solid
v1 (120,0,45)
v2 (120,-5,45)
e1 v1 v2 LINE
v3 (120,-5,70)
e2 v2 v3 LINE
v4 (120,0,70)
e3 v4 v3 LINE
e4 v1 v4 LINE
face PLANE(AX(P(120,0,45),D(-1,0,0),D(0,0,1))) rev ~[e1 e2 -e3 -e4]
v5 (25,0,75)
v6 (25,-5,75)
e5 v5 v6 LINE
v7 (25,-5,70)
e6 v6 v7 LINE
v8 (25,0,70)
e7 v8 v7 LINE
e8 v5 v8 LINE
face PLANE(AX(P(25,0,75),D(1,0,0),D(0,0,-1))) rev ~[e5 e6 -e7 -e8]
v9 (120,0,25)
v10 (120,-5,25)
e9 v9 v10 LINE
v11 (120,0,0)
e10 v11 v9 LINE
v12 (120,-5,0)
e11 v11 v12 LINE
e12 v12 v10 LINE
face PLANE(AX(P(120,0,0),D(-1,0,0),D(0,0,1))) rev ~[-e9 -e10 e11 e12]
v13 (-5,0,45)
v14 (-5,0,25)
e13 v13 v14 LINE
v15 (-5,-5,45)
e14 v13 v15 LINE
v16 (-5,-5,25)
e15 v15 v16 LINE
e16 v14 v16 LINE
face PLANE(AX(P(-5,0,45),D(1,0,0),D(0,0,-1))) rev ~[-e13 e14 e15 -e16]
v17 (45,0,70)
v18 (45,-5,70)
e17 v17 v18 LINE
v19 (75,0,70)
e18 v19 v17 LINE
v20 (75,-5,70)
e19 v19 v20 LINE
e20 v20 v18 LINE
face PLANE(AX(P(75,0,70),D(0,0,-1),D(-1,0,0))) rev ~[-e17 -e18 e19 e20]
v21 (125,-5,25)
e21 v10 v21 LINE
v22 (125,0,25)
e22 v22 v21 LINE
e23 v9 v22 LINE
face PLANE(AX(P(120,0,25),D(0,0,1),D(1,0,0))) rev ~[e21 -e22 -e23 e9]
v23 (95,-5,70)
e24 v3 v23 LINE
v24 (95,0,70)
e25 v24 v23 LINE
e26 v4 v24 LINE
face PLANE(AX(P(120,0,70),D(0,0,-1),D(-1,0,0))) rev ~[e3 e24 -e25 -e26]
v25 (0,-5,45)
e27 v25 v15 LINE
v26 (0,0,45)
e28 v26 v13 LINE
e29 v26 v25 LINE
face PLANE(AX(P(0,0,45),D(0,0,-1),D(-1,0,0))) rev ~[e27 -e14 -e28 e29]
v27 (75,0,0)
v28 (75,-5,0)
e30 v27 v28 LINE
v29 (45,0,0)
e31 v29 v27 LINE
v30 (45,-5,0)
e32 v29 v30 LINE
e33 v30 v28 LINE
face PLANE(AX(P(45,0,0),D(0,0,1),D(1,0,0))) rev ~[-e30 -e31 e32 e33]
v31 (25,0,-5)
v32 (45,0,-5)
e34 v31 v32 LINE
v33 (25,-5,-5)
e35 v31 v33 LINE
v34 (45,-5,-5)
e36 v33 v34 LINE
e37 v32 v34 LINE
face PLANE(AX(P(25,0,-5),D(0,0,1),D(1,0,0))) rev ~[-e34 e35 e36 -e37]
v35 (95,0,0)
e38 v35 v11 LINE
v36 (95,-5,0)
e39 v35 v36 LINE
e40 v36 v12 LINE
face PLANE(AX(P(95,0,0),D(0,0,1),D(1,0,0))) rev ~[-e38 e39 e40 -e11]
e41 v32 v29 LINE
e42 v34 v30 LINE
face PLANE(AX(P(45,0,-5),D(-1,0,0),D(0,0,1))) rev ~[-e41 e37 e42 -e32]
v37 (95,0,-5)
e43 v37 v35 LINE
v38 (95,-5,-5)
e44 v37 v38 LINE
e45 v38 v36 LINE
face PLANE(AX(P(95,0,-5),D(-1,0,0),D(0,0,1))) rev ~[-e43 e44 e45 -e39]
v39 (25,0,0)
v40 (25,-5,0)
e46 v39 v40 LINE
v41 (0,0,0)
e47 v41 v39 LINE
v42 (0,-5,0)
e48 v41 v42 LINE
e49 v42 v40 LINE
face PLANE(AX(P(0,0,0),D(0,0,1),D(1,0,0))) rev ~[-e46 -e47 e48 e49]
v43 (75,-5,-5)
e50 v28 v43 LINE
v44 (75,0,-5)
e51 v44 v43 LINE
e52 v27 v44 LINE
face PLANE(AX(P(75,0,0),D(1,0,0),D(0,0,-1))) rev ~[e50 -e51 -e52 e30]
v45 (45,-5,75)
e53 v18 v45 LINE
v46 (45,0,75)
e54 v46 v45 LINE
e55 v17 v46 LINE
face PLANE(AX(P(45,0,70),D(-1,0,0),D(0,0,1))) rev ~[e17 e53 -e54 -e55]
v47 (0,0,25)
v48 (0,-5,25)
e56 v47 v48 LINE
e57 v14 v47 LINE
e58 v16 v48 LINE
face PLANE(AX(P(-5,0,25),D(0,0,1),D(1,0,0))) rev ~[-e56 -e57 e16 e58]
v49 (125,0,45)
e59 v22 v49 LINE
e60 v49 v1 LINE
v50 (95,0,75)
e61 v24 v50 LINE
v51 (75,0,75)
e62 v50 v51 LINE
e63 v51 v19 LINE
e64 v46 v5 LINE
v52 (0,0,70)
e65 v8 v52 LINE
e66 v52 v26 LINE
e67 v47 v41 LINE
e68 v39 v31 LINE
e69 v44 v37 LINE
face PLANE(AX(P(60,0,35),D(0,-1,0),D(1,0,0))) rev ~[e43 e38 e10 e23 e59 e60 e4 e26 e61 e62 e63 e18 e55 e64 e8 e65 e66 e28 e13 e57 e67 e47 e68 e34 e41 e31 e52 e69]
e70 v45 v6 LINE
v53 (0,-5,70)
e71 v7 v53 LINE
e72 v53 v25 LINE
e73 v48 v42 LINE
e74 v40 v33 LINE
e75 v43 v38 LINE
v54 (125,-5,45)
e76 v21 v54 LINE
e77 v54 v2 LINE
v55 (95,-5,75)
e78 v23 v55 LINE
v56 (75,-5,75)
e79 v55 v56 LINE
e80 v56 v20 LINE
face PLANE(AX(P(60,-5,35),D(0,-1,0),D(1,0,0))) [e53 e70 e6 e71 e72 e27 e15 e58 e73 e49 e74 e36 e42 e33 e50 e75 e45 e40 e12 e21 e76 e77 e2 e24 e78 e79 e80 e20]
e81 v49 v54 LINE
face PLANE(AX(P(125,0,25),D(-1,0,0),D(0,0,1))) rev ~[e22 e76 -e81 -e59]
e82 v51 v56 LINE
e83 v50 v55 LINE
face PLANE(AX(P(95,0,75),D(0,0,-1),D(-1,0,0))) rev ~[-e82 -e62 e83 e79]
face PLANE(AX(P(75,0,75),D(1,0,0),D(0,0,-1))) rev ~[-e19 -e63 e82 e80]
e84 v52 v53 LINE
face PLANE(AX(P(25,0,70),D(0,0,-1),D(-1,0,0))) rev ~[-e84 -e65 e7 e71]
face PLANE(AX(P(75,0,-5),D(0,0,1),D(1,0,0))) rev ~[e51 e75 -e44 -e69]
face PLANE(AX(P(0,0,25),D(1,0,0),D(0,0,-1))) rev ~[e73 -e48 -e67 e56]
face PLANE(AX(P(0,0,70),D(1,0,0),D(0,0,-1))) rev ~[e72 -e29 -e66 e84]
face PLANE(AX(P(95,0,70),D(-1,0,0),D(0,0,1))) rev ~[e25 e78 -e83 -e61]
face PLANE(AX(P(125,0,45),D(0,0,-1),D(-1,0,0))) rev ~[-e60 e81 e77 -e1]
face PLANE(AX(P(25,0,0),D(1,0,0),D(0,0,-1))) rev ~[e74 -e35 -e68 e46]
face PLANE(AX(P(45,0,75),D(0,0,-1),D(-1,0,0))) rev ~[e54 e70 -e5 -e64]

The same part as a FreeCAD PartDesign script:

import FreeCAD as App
import Part
import Sketcher
Q = App.Units.Quantity


def add_polygon(sketch, points):
    """Adds a closed chain of lines whose ends are joined by coincident constraints."""
    first, n = sketch.GeometryCount, len(points)
    for a, b in zip(points, points[1:] + points[:1]):
        sketch.addGeometry(Part.LineSegment(App.Vector(*a, 0), App.Vector(*b, 0)), False)
    for i in range(n):
        sketch.addConstraint(Sketcher.Constraint("Coincident", first + i, 2, first + (i + 1) % n, 1))

doc = App.newDocument("Part")
body = doc.addObject("PartDesign::Body", "Body")

sketch1 = body.newObject("Sketcher::SketchObject", "Sketch")
sketch1.AttachmentSupport = (doc.getObject("XZ_Plane"), [""])
sketch1.MapMode = "FlatFace"
add_polygon(sketch1, [(0, 25), (0, 0), (25, 0), (25, -5), (45, -5), (45, 0), (75, 0), (75, -5), (95, -5), (95, 0), (120, 0), (120, 25), (125, 25), (125, 45), (120, 45), (120, 70), (95, 70), (95, 75), (75, 75), (75, 70), (45, 70), (45, 75), (25, 75), (25, 70), (0, 70), (0, 45), (-5, 45), (-5, 25)])
sketch1.addConstraint(Sketcher.Constraint("Vertical", 0))
sketch1.addConstraint(Sketcher.Constraint("Horizontal", 1))
sketch1.addConstraint(Sketcher.Constraint("Vertical", 2))
sketch1.addConstraint(Sketcher.Constraint("Horizontal", 3))
sketch1.addConstraint(Sketcher.Constraint("Vertical", 4))
sketch1.addConstraint(Sketcher.Constraint("Horizontal", 5))
sketch1.addConstraint(Sketcher.Constraint("Vertical", 6))
sketch1.addConstraint(Sketcher.Constraint("Horizontal", 7))
sketch1.addConstraint(Sketcher.Constraint("Vertical", 8))
sketch1.addConstraint(Sketcher.Constraint("Horizontal", 9))
sketch1.addConstraint(Sketcher.Constraint("Vertical", 10))
sketch1.addConstraint(Sketcher.Constraint("Horizontal", 11))
sketch1.addConstraint(Sketcher.Constraint("Vertical", 12))
sketch1.addConstraint(Sketcher.Constraint("Horizontal", 13))
sketch1.addConstraint(Sketcher.Constraint("Vertical", 14))
sketch1.addConstraint(Sketcher.Constraint("Horizontal", 15))
sketch1.addConstraint(Sketcher.Constraint("Vertical", 16))
sketch1.addConstraint(Sketcher.Constraint("Horizontal", 17))
sketch1.addConstraint(Sketcher.Constraint("Vertical", 18))
sketch1.addConstraint(Sketcher.Constraint("Horizontal", 19))
sketch1.addConstraint(Sketcher.Constraint("Vertical", 20))
sketch1.addConstraint(Sketcher.Constraint("Horizontal", 21))
sketch1.addConstraint(Sketcher.Constraint("Vertical", 22))
sketch1.addConstraint(Sketcher.Constraint("Horizontal", 23))
sketch1.addConstraint(Sketcher.Constraint("Vertical", 24))
sketch1.addConstraint(Sketcher.Constraint("Horizontal", 25))
sketch1.addConstraint(Sketcher.Constraint("Vertical", 26))
sketch1.addConstraint(Sketcher.Constraint("Horizontal", 27))
sketch1.addConstraint(Sketcher.Constraint("Coincident", 0, 2, -1, 1))
sketch1.addConstraint(Sketcher.Constraint("PointOnObject", 4, 2, -1))
sketch1.addConstraint(Sketcher.Constraint("PointOnObject", 8, 2, -1))
sketch1.addConstraint(Sketcher.Constraint("PointOnObject", 23, 2, -2))
sketch1.addConstraint(Sketcher.Constraint("Horizontal", 3, 2, 6, 2))
sketch1.addConstraint(Sketcher.Constraint("Horizontal", 15, 2, 18, 2))
sketch1.addConstraint(Sketcher.Constraint("Horizontal", 17, 2, 20, 2))
sketch1.addConstraint(Sketcher.Constraint("Horizontal", 19, 2, 22, 2))
sketch1.addConstraint(Sketcher.Constraint("Horizontal", 13, 2, 24, 2))
sketch1.addConstraint(Sketcher.Constraint("Horizontal", 11, 2, 26, 2))
sketch1.addConstraint(Sketcher.Constraint("Vertical", 10, 2, 13, 2))
sketch1.addConstraint(Sketcher.Constraint("Vertical", 8, 2, 15, 2))
sketch1.addConstraint(Sketcher.Constraint("Vertical", 6, 2, 17, 2))
sketch1.addConstraint(Sketcher.Constraint("Vertical", 4, 2, 19, 2))
sketch1.addConstraint(Sketcher.Constraint("Vertical", 2, 2, 21, 2))
sketch1.addConstraint(Sketcher.Constraint("Equal", 3, 7))
sketch1.addConstraint(Sketcher.Constraint("Equal", 1, 9))
sketch1.addConstraint(Sketcher.Constraint("Equal", 13, 25))
sketch1.addConstraint(Sketcher.Constraint("Equal", 23, 0))
sketch1.addConstraint(Sketcher.Constraint("Equal", 27, 2))
sketch1.addConstraint(Sketcher.Constraint("Equal", 21, 12))
sketch1.addConstraint(Sketcher.Constraint("Equal", 10, 14))
sketch1.addConstraint(Sketcher.Constraint("Equal", 8, 16))
sketch1.addConstraint(Sketcher.Constraint("DistanceX", 1, 1, 1, 2, Q("25 mm")))
sketch1.addConstraint(Sketcher.Constraint("DistanceX", 3, 1, 3, 2, Q("20 mm")))
sketch1.addConstraint(Sketcher.Constraint("DistanceX", 5, 1, 5, 2, Q("30 mm")))
sketch1.addConstraint(Sketcher.Constraint("DistanceX", 11, 1, 11, 2, Q("5 mm")))
pad1 = body.newObject("PartDesign::Pad", "Pad")
pad1.Profile = sketch1
pad1.Length = 5

doc.recompute()
